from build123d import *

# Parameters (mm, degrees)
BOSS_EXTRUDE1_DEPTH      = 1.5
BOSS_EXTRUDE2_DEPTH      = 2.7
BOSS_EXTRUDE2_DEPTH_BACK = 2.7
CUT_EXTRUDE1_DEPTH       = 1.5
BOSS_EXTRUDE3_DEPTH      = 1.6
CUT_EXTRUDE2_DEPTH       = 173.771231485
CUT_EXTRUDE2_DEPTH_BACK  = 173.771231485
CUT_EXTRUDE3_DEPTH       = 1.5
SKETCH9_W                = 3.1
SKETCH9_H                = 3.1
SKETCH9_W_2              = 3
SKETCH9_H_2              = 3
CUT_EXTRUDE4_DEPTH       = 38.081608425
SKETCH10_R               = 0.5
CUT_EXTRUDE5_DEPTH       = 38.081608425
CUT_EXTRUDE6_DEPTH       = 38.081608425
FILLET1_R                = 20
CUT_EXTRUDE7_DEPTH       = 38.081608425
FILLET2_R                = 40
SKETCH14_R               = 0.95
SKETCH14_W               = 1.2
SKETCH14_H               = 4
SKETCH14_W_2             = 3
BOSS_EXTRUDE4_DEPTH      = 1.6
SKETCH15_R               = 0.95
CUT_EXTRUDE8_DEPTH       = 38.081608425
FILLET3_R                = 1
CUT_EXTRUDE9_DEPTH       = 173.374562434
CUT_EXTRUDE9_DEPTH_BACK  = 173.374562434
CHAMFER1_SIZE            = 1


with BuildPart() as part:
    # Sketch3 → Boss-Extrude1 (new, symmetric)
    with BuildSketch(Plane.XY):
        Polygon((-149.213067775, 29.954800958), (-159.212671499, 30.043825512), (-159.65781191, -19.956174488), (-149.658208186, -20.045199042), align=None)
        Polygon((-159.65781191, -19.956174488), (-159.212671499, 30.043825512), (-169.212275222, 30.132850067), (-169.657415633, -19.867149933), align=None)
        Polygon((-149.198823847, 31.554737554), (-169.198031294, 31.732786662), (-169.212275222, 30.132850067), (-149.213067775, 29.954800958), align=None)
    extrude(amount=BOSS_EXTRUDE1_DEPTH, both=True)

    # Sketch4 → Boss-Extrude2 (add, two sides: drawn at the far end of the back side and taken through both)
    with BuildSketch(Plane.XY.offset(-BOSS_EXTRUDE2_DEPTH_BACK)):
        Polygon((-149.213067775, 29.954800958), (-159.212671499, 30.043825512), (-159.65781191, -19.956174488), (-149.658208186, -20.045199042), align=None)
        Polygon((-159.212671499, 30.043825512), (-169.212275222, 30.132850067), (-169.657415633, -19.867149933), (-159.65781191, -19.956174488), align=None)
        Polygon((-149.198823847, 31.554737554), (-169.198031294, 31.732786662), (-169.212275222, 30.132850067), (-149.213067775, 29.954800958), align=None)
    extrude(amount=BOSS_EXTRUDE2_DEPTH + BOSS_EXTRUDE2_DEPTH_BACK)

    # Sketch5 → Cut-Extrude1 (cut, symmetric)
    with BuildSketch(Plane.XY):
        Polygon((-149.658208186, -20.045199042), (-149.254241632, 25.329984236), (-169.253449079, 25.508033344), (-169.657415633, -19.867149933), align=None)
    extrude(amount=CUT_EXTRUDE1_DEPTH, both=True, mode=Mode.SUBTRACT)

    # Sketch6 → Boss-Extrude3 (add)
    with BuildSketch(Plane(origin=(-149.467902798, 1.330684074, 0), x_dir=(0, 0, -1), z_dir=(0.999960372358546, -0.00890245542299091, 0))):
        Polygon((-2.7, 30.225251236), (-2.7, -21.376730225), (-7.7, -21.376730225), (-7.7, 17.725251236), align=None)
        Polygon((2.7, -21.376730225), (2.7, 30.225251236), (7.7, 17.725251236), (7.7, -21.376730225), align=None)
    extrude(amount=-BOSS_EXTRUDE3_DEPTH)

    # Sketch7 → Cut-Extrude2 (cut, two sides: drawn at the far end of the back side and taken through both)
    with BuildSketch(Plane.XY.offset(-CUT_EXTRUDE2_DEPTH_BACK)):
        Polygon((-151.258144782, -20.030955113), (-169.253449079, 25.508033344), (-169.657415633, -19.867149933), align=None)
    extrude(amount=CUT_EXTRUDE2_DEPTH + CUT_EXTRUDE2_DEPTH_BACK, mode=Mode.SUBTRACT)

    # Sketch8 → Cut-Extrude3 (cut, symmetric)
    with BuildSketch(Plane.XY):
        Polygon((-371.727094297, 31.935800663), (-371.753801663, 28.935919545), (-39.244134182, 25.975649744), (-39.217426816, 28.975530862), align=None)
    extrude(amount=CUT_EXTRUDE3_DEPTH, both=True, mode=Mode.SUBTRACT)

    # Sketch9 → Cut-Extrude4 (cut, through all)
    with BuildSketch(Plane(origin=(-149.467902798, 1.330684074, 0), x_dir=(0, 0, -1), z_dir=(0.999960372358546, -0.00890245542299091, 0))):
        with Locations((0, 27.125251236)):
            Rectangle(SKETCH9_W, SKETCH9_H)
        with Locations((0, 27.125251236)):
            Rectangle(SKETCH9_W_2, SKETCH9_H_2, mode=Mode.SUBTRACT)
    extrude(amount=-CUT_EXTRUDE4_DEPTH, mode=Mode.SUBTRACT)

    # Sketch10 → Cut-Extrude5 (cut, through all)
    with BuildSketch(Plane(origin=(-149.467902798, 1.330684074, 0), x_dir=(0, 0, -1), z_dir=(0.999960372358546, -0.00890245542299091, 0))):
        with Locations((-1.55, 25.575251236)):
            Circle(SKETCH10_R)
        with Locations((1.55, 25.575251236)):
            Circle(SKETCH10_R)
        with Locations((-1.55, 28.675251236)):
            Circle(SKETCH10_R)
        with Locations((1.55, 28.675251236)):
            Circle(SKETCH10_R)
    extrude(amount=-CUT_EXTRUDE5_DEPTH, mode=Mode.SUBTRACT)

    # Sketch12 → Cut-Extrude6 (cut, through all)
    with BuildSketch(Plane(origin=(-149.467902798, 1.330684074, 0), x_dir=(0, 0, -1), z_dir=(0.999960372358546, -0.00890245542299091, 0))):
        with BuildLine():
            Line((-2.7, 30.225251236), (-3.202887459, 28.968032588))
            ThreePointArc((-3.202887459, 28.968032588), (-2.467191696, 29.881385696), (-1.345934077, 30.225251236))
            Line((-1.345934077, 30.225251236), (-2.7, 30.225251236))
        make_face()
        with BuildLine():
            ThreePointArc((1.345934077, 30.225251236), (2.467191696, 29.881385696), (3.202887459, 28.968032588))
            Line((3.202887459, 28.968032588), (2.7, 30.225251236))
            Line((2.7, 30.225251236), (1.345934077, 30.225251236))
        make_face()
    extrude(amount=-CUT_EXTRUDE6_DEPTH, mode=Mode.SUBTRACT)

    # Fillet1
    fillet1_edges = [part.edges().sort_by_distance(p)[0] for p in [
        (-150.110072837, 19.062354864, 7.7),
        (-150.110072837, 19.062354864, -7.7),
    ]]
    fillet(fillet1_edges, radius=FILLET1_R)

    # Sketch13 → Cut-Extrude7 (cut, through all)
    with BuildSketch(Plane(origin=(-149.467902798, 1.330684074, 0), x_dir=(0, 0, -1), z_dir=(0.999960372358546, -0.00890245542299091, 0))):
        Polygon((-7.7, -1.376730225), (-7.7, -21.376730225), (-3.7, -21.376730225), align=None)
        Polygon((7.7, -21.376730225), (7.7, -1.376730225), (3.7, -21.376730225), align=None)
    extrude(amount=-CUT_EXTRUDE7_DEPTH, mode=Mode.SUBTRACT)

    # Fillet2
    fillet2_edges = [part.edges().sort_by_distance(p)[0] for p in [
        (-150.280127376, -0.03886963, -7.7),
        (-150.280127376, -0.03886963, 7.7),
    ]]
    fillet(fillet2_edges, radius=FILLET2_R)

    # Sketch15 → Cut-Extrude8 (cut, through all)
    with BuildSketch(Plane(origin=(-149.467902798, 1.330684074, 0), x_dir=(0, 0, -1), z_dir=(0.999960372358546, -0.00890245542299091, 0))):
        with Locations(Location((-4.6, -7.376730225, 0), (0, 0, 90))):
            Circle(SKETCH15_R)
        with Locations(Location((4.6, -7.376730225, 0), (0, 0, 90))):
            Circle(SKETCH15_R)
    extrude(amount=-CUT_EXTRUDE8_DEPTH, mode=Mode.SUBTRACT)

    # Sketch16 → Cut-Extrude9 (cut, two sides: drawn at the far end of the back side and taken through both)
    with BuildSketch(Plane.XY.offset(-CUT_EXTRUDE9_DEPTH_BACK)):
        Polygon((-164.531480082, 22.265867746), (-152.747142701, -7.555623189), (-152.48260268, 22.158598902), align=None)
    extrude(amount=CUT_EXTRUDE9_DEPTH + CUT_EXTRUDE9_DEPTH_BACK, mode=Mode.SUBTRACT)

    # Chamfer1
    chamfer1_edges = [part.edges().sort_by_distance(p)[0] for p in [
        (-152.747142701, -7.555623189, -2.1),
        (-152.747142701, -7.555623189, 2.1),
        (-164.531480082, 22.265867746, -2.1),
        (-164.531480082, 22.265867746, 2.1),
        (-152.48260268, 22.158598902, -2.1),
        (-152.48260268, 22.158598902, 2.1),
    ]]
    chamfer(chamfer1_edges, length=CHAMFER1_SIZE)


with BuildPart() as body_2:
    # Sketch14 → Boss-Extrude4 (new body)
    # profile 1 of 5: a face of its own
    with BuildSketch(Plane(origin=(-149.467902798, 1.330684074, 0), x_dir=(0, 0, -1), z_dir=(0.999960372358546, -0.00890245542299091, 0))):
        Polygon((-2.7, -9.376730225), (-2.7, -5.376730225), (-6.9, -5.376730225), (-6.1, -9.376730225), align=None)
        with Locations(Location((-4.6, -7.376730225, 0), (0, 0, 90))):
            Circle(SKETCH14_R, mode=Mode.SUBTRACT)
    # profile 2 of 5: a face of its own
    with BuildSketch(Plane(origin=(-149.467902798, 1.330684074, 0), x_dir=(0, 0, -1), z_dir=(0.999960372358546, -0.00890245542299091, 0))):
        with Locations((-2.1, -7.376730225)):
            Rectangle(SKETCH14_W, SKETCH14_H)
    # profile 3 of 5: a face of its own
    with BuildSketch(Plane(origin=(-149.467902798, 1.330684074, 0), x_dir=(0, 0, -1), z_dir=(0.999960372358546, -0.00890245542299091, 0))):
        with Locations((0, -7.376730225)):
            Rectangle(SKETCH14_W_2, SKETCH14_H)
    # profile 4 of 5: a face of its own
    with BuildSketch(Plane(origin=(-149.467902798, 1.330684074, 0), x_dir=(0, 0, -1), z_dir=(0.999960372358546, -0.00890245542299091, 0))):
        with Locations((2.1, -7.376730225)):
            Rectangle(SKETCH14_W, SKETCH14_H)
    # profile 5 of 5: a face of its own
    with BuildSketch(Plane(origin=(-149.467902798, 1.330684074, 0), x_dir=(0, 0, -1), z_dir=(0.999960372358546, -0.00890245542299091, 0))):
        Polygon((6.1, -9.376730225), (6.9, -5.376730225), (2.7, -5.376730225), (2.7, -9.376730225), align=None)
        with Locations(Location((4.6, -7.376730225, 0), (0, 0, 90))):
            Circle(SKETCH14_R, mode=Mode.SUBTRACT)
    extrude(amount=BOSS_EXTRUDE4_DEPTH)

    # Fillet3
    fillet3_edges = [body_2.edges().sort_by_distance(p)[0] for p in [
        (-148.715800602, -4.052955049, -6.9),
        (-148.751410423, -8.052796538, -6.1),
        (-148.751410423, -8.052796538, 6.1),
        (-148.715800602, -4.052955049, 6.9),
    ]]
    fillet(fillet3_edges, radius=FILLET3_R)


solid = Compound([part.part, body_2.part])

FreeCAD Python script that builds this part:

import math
import FreeCAD as App
import Part
import Sketcher

V = App.Vector
Q = App.Units.Quantity


def edges_at(feature, points):
    """Names of the edges that pass closest to the given points."""
    edges = feature.Shape.Edges
    near = lambda p: min(range(len(edges)), key=lambda i: edges[i].distToShape(Part.Vertex(*p))[0])
    return sorted({f"Edge{near(p) + 1}" for p in points})


def add_polygon(sketch, points):
    """Adds a closed chain of lines whose ends are joined by coincident constraints."""
    first, n = sketch.GeometryCount, len(points)
    for a, b in zip(points, points[1:] + points[:1]):
        sketch.addGeometry(Part.LineSegment(App.Vector(*a, 0), App.Vector(*b, 0)), False)
    for i in range(n):
        sketch.addConstraint(Sketcher.Constraint("Coincident", first + i, 2, first + (i + 1) % n, 1))

doc = App.newDocument("Part")
body = doc.addObject("PartDesign::Body", "Body")

# Sketch on XY plane
sketch1 = body.newObject("Sketcher::SketchObject", "Sketch")
sketch1.AttachmentSupport = (doc.getObject("XY_Plane"), [""])
sketch1.MapMode = "FlatFace"
add_polygon(sketch1, [(-169.212275, 30.13285), (-169.657416, -19.86715), (-159.657812, -19.956174), (-149.658208, -20.045199), (-149.213068, 29.954801), (-149.198824, 31.554738), (-169.198031, 31.732787)])  # lines 0-6
sketch1.addConstraint([
    Sketcher.Constraint("Distance", 1, Q("10 mm")),
    Sketcher.Constraint("Distance", 2, Q("10 mm")),
    Sketcher.Constraint("Distance", 5, Q("20 mm")),
    Sketcher.Constraint("DistanceY", 2, 2, 3, 2, Q("50 mm")),
    Sketcher.Constraint("DistanceY", 0, 2, 6, 2, Q("50 mm")),
    Sketcher.Constraint("Distance", 4, Q("1.6 mm")),
    Sketcher.Constraint("Distance", 6, Q("1.6 mm")),
    Sketcher.Constraint("DistanceY", 2, 2, -1, 1, Q("20.045199 mm")),
    Sketcher.Constraint("Distance", 0, Q("50.001981 mm")),
    Sketcher.Constraint("Distance", 3, Q("50.001981 mm")),
    Sketcher.Constraint("DistanceY", 0, 2, -1, 1, Q("19.86715 mm")),
    Sketcher.Constraint("DistanceX", 1, 2, -1, 1, Q("159.657812 mm")),
    Sketcher.Constraint("DistanceX", 2, 2, -1, 1, Q("149.658208 mm")),
    Sketcher.Constraint("DistanceX", 5, 2, -1, 1, Q("169.198031 mm")),
])
pad1 = body.newObject("PartDesign::Pad", "Pad")
pad1.Profile = sketch1
pad1.Length = 3
pad1.Midplane = True

# Sketch on XY plane
sketch2 = body.newObject("Sketcher::SketchObject", "Sketch001")
sketch2.AttachmentSupport = (doc.getObject("XY_Plane"), [""])
sketch2.MapMode = "FlatFace"
add_polygon(sketch2, [(-169.212275, 30.13285), (-169.657416, -19.86715), (-159.657812, -19.956174), (-149.658208, -20.045199), (-149.213068, 29.954801), (-149.198824, 31.554738), (-169.198031, 31.732787)])  # lines 0-6
sketch2.addConstraint([
    Sketcher.Constraint("Distance", 1, Q("10 mm")),
    Sketcher.Constraint("Distance", 2, Q("10 mm")),
    Sketcher.Constraint("Distance", 5, Q("20 mm")),
    Sketcher.Constraint("DistanceY", 2, 2, 3, 2, Q("50 mm")),
    Sketcher.Constraint("DistanceY", 0, 2, 6, 2, Q("50 mm")),
    Sketcher.Constraint("Distance", 4, Q("1.6 mm")),
    Sketcher.Constraint("Distance", 6, Q("1.6 mm")),
    Sketcher.Constraint("DistanceY", 2, 2, -1, 1, Q("20.045199 mm")),
    Sketcher.Constraint("Distance", 0, Q("50.001981 mm")),
    Sketcher.Constraint("Distance", 3, Q("50.001981 mm")),
    Sketcher.Constraint("DistanceY", 0, 2, -1, 1, Q("19.86715 mm")),
    Sketcher.Constraint("DistanceX", 1, 2, -1, 1, Q("159.657812 mm")),
    Sketcher.Constraint("DistanceX", 2, 2, -1, 1, Q("149.658208 mm")),
    Sketcher.Constraint("DistanceX", 5, 2, -1, 1, Q("169.198031 mm")),
])
pad2 = body.newObject("PartDesign::Pad", "Pad001")
pad2.Profile = sketch2
pad2.Type = "TwoLengths"
pad2.Length = 2.7
pad2.Length2 = 2.7

# Sketch on XY plane
sketch3 = body.newObject("Sketcher::SketchObject", "Sketch002")
sketch3.AttachmentSupport = (doc.getObject("XY_Plane"), [""])
sketch3.MapMode = "FlatFace"
add_polygon(sketch3, [(-150, -20), (-149, 25), (-169, 26), (-170, -20)])  # lines 0-3
sketch3.addConstraint([
    Sketcher.Constraint("Perpendicular", 0, 1),
    Sketcher.Constraint("Perpendicular", 1, 2),
    Sketcher.Constraint("Perpendicular", 2, 3),
    Sketcher.Constraint("Distance", 1, Q("20 mm")),
    Sketcher.Constraint("DistanceY", 3, 2, -1, 1, Q("20.045199 mm")),
    Sketcher.Constraint("Distance", 0, Q("45.376981 mm")),
    Sketcher.Constraint("DistanceX", 0, 2, -1, 1, Q("149.254242 mm")),
    Sketcher.Constraint("DistanceY", 2, 2, -1, 1, Q("19.86715 mm")),
])
pocket1 = body.newObject("PartDesign::Pocket", "Pocket")
pocket1.Profile = sketch3
pocket1.Length = 3
pocket1.Midplane = True

# Sketch on an angled plane
sketch4 = body.newObject("Sketcher::SketchObject", "Sketch003")
sketch4.Placement = App.Placement(V(-149.467903, 1.330684, 0), App.Rotation(V(0, 0, -1), V(0.008902455, 0.999960372, 0), V(0.999960372, -0.008902455, 0), "ZXY"))
add_polygon(sketch4, [(-3, -21), (-3, 30), (-8, 18), (-8, -21)])  # lines 0-3
add_polygon(sketch4, [(3, 30), (3, -21), (8, -21), (8, 18)])  # lines 4-7
sketch4.addConstraint([
    Sketcher.Constraint("Vertical", 0),
    Sketcher.Constraint("Vertical", 2),
    Sketcher.Constraint("Horizontal", 3),
    Sketcher.Constraint("Vertical", 4),
    Sketcher.Constraint("Horizontal", 5),
    Sketcher.Constraint("Vertical", 6),
    Sketcher.Constraint("Symmetric", 3, 2, 4, 2, -2),
    Sketcher.Constraint("Symmetric", 1, 2, 6, 2, -2),
    Sketcher.Constraint("Horizontal", 0, 2, 7, 2),
    Sketcher.Constraint("DistanceX", 3, 1, 3, 2, Q("5 mm")),
    Sketcher.Constraint("DistanceX", 0, 2, -1, 1, Q("2.7 mm")),
    Sketcher.Constraint("DistanceY", 1, 2, 0, 2, Q("12.5 mm")),
    Sketcher.Constraint("DistanceY", 0, 1, 0, 2, Q("51.601981 mm")),
    Sketcher.Constraint("DistanceY", -1, 1, 0, 2, Q("30.225251 mm")),
])
pad3 = body.newObject("PartDesign::Pad", "Pad002")
pad3.Profile = sketch4
pad3.Length = 1.6
pad3.Reversed = True

# Sketch on XY plane
sketch5 = body.newObject("Sketcher::SketchObject", "Sketch004")
sketch5.AttachmentSupport = (doc.getObject("XY_Plane"), [""])
sketch5.MapMode = "FlatFace"
add_polygon(sketch5, [(-151, -20), (-169, 26), (-170, -20)])  # lines 0-2
sketch5.addConstraint([
    Sketcher.Constraint("Perpendicular", 1, 2),
    Sketcher.Constraint("Distance", 2, Q("18.4 mm")),
    Sketcher.Constraint("Distance", 1, Q("45.376981 mm")),
    Sketcher.Constraint("DistanceX", 0, 2, -1, 1, Q("169.253449 mm")),
    Sketcher.Constraint("DistanceY", 1, 2, -1, 1, Q("19.86715 mm")),
    Sketcher.Constraint("DistanceY", 2, 2, 0, 2, Q("45.538988 mm")),
])
pocket2 = body.newObject("PartDesign::Pocket", "Pocket001")
pocket2.Profile = sketch5
pocket2.Type = "ThroughAll"
pocket2.Midplane = True

# Sketch on XY plane
sketch6 = body.newObject("Sketcher::SketchObject", "Sketch005")
sketch6.AttachmentSupport = (doc.getObject("XY_Plane"), [""])
sketch6.MapMode = "FlatFace"
add_polygon(sketch6, [(-371.7, 31.9), (-371.8, 28.9), (-39.2, 26), (-39.2, 29)])  # lines 0-3
sketch6.addConstraint([
    Sketcher.Constraint("Perpendicular", 0, 1),
    Sketcher.Constraint("Perpendicular", 1, 2),
    Sketcher.Constraint("Perpendicular", 2, 3),
    Sketcher.Constraint("Distance", 0, Q("3 mm")),
    Sketcher.Constraint("DistanceX", 0, 2, -1, 1, Q("371.753802 mm")),
    Sketcher.Constraint("DistanceY", -1, 1, 3, 2, Q("31.935801 mm")),
    Sketcher.Constraint("DistanceY", -1, 1, 1, 2, Q("25.97565 mm")),
    Sketcher.Constraint("DistanceX", 3, 2, 1, 2, Q("332.48296 mm")),
])
pocket3 = body.newObject("PartDesign::Pocket", "Pocket002")
pocket3.Profile = sketch6
pocket3.Length = 3
pocket3.Midplane = True

# Sketch on an angled plane
sketch7 = body.newObject("Sketcher::SketchObject", "Sketch006")
sketch7.Placement = App.Placement(V(-149.467903, 1.330684, 0), App.Rotation(V(0, 0, -1), V(0.008902455, 0.999960372, 0), V(0.999960372, -0.008902455, 0), "ZXY"))
add_polygon(sketch7, [(-1.6, 28.7), (-1.6, 25.6), (1.6, 25.6), (1.6, 28.7)])  # lines 0-3
add_polygon(sketch7, [(1.5, 25.6), (-1.5, 25.6), (-1.5, 28.6), (1.5, 28.6)])  # lines 4-7
sketch7.addConstraint([
    Sketcher.Constraint("Vertical", 0),
    Sketcher.Constraint("Horizontal", 1),
    Sketcher.Constraint("Vertical", 2),
    Sketcher.Constraint("Horizontal", 3),
    Sketcher.Constraint("Horizontal", 4),
    Sketcher.Constraint("Vertical", 5),
    Sketcher.Constraint("Horizontal", 6),
    Sketcher.Constraint("Vertical", 7),
    Sketcher.Constraint("Equal", 3, 0),
    Sketcher.Constraint("Equal", 6, 5),
    Sketcher.Constraint("DistanceX", 4, 2, 4, 1, Q("3 mm")),
    Sketcher.Constraint("DistanceX", 1, 1, 1, 2, Q("3.1 mm")),
    Sketcher.Constraint("DistanceX", 4, 2, -1, 1, Q("1.5 mm")),
    Sketcher.Constraint("DistanceX", 0, 2, -1, 1, Q("1.55 mm")),
    Sketcher.Constraint("DistanceY", 0, 2, 4, 2, Q("0.05 mm")),
    Sketcher.Constraint("DistanceY", -1, 1, 0, 2, Q("25.575251 mm")),
])
pocket4 = body.newObject("PartDesign::Pocket", "Pocket003")
pocket4.Profile = sketch7
pocket4.Type = "ThroughAll"

# Sketch on an angled plane
sketch8 = body.newObject("Sketcher::SketchObject", "Sketch007")
sketch8.Placement = App.Placement(V(-149.467903, 1.330684, 0), App.Rotation(V(0, 0, -1), V(0.008902455, 0.999960372, 0), V(0.999960372, -0.008902455, 0), "ZXY"))
sketch8.addGeometry([
    Part.Circle(V(-1.6, 25.6, 0), V(0, 0, 1), 0.5),
    Part.Circle(V(1.6, 25.6, 0), V(0, 0, 1), 0.5),
    Part.Circle(V(-1.6, 28.7, 0), V(0, 0, 1), 0.5),
    Part.Circle(V(1.6, 28.7, 0), V(0, 0, 1), 0.5),
], False)
sketch8.addConstraint([
    Sketcher.Constraint("Equal", 0, 1),
    Sketcher.Constraint("Equal", 1, 2),
    Sketcher.Constraint("Equal", 2, 3),
    Sketcher.Constraint("Symmetric", 0, 3, 1, 3, -2),
    Sketcher.Constraint("Symmetric", 2, 3, 3, 3, -2),
    Sketcher.Constraint("Vertical", 0, 3, 2, 3),
    Sketcher.Constraint("Diameter", 0, Q("1 mm")),
    Sketcher.Constraint("DistanceX", 0, 3, 1, 3, Q("3.1 mm")),
    Sketcher.Constraint("DistanceY", 0, 3, 2, 3, Q("3.1 mm")),
    Sketcher.Constraint("DistanceY", -1, 1, 0, 3, Q("25.575251 mm")),
])
pocket5 = body.newObject("PartDesign::Pocket", "Pocket004")
pocket5.Profile = sketch8
pocket5.Type = "ThroughAll"

# Sketch on an angled plane
sketch9 = body.newObject("Sketcher::SketchObject", "Sketch008")
sketch9.Placement = App.Placement(V(-149.467903, 1.330684, 0), App.Rotation(V(0, 0, -1), V(0.008902455, 0.999960372, 0), V(0.999960372, -0.008902455, 0), "ZXY"))
sketch9.addGeometry([
    Part.LineSegment(V(-2.7, 30.2, 0), V(-3.2, 29, 0)),  # 0
    Part.ArcOfCircle(Part.Circle(V(-1.3, 28.2, 0), V(0, 0, 1), 2), math.radians(90), math.radians(158)),  # 1
    Part.LineSegment(V(-1.3, 30.2, 0), V(-2.7, 30.2, 0)),  # 2
    Part.ArcOfCircle(Part.Circle(V(1.3, 28.2, 0), V(0, 0, 1), 2), math.radians(22), math.radians(90)),  # 3
    Part.LineSegment(V(3.2, 29, 0), V(2.7, 30.2, 0)),  # 4
    Part.LineSegment(V(2.7, 30.2, 0), V(1.3, 30.2, 0)),  # 5
], False)
sketch9.addConstraint([
    Sketcher.Constraint("Tangent", 0, 2, 1, 2),
    Sketcher.Constraint("Tangent", 1, 1, 2, 1),
    Sketcher.Constraint("Coincident", 2, 2, 0, 1),
    Sketcher.Constraint("Tangent", 3, 1, 4, 1),
    Sketcher.Constraint("Coincident", 4, 2, 5, 1),
    Sketcher.Constraint("Tangent", 5, 2, 3, 2),
    Sketcher.Constraint("Horizontal", 2),
    Sketcher.Constraint("Horizontal", 5),
    Sketcher.Constraint("Equal", 1, 3),
    Sketcher.Constraint("Symmetric", 1, 3, 3, 3, -2),
    Sketcher.Constraint("Horizontal", 0, 2, 3, 1),
    Sketcher.Constraint("Radius", 1, Q("2 mm")),
    Sketcher.Constraint("DistanceX", 2, 2, -1, 1, Q("2.7 mm")),
    Sketcher.Constraint("DistanceX", 2, 2, 2, 1, Q("1.354066 mm")),
    Sketcher.Constraint("DistanceY", -1, 1, 1, 3, Q("28.225251 mm")),
])
pocket6 = body.newObject("PartDesign::Pocket", "Pocket005")
pocket6.Profile = sketch9
pocket6.Type = "ThroughAll"
doc.recompute()

fillet = body.newObject("PartDesign::Fillet", "Fillet")
fillet.Base = (pocket6, edges_at(pocket6, [(-150.11, 19.062, 7.7), (-150.11, 19.062, -7.7)]))
fillet.Radius = 20

# Sketch on an angled plane
sketch10 = body.newObject("Sketcher::SketchObject", "Sketch009")
sketch10.Placement = App.Placement(V(-149.467903, 1.330684, 0), App.Rotation(V(0, 0, -1), V(0.008902455, 0.999960372, 0), V(0.999960372, -0.008902455, 0), "ZXY"))
add_polygon(sketch10, [(-7.7, -1.4), (-7.7, -21.4), (-3.7, -21.4)])  # lines 0-2
add_polygon(sketch10, [(7.7, -21.4), (7.7, -1.4), (3.7, -21.4)])  # lines 3-5
sketch10.addConstraint([
    Sketcher.Constraint("Vertical", 0),
    Sketcher.Constraint("Horizontal", 1),
    Sketcher.Constraint("Vertical", 3),
    Sketcher.Constraint("Horizontal", 5),
    Sketcher.Constraint("Symmetric", 2, 2, 3, 2, -2),
    Sketcher.Constraint("Symmetric", 1, 2, 4, 2, -2),
    Sketcher.Constraint("DistanceX", 1, 1, 1, 2, Q("4 mm")),
    Sketcher.Constraint("DistanceY", 0, 2, 0, 1, Q("20 mm")),
    Sketcher.Constraint("DistanceX", 0, 2, -1, 1, Q("7.7 mm")),
    Sketcher.Constraint("DistanceY", 0, 2, -1, 1, Q("21.37673 mm")),
])
pocket7 = body.newObject("PartDesign::Pocket", "Pocket006")
pocket7.Profile = sketch10
pocket7.Type = "ThroughAll"
doc.recompute()

fillet2 = body.newObject("PartDesign::Fillet", "Fillet001")
fillet2.Base = (pocket7, edges_at(pocket7, [(-150.28, -0.039, -7.7), (-150.28, -0.039, 7.7)]))
fillet2.Radius = 40

# Sketch on an angled plane
sketch11 = body.newObject("Sketcher::SketchObject", "Sketch010")
sketch11.Placement = App.Placement(V(-149.467903, 1.330684, 0), App.Rotation(V(0, 0, -1), V(0.008902455, 0.999960372, 0), V(0.999960372, -0.008902455, 0), "ZXY"))
sketch11.addGeometry([
    Part.Circle(V(-4.6, -7.4, 0), V(0, 0, 1), 0.9),
    Part.Circle(V(4.6, -7.4, 0), V(0, 0, 1), 0.9),
], False)
sketch11.addConstraint([
    Sketcher.Constraint("Equal", 0, 1),
    Sketcher.Constraint("Symmetric", 0, 3, 1, 3, -2),
    Sketcher.Constraint("Diameter", 0, Q("1.9 mm")),
    Sketcher.Constraint("DistanceX", 0, 3, -1, 1, Q("4.6 mm")),
    Sketcher.Constraint("DistanceY", 0, 3, -1, 1, Q("7.37673 mm")),
])
pocket8 = body.newObject("PartDesign::Pocket", "Pocket007")
pocket8.Profile = sketch11
pocket8.Type = "ThroughAll"

# Sketch on XY plane
sketch12 = body.newObject("Sketcher::SketchObject", "Sketch011")
sketch12.AttachmentSupport = (doc.getObject("XY_Plane"), [""])
sketch12.MapMode = "FlatFace"
add_polygon(sketch12, [(-165, 22), (-153, -8), (-152, 22)])  # lines 0-2
sketch12.addConstraint([
    Sketcher.Constraint("Perpendicular", 1, 2),
    Sketcher.Constraint("Distance", 1, Q("29.7154 mm")),
    Sketcher.Constraint("DistanceY", -1, 1, 1, 2, Q("22.158599 mm")),
    Sketcher.Constraint("Distance", 0, Q("32.065432 mm")),
    Sketcher.Constraint("DistanceX", 2, 2, -1, 1, Q("164.53148 mm")),
    Sketcher.Constraint("DistanceX", 0, 2, 1, 2, Q("0.26454 mm")),
])
pocket9 = body.newObject("PartDesign::Pocket", "Pocket008")
pocket9.Profile = sketch12
pocket9.Type = "ThroughAll"
pocket9.Midplane = True
doc.recompute()

chamfer = body.newObject("PartDesign::Chamfer", "Chamfer")
chamfer.Base = (pocket9, edges_at(pocket9, [
    (-152.747, -7.556, -2.1),
    (-152.747, -7.556, 2.1),
    (-164.531, 22.266, -2.1),
    (-164.531, 22.266, 2.1),
    (-152.483, 22.159, -2.1),
    (-152.483, 22.159, 2.1),
]))
chamfer.Size = 1
body2 = doc.addObject("PartDesign::Body", "Body001")

# Sketch on an angled plane
sketch13 = body2.newObject("Sketcher::SketchObject", "Sketch012")
sketch13.Placement = App.Placement(V(-149.467903, 1.330684, 0), App.Rotation(V(0, 0, -1), V(0.008902455, 0.999960372, 0), V(0.999960372, -0.008902455, 0), "ZXY"))
add_polygon(sketch13, [(-6.1, -9.4), (6.1, -9.4), (6.9, -5.4), (-6.9, -5.4)])  # lines 0-3
sketch13.addGeometry(Part.Circle(V(-4.6, -7.4, 0), V(0, 0, 1), 0.9), False)  # 4
sketch13.addGeometry(Part.Circle(V(4.6, -7.4, 0), V(0, 0, 1), 0.9), False)  # 5
sketch13.addConstraint([
    Sketcher.Constraint("Horizontal", 0),
    Sketcher.Constraint("Horizontal", 2),
    Sketcher.Constraint("Equal", 4, 5),
    Sketcher.Constraint("Symmetric", 4, 3, 5, 3, -2),
    Sketcher.Constraint("Equal", 1, 3),
    Sketcher.Constraint("Diameter", 4, Q("1.9 mm")),
    Sketcher.Constraint("DistanceX", 0, 1, 0, 2, Q("12.2 mm")),
    Sketcher.Constraint("DistanceX", 2, 2, 2, 1, Q("13.8 mm")),
    Sketcher.Constraint("DistanceY", 0, 2, 5, 3, Q("2 mm")),
    Sketcher.Constraint("DistanceY", 5, 3, 1, 2, Q("2 mm")),
    Sketcher.Constraint("DistanceX", 4, 3, -1, 1, Q("4.6 mm")),
    Sketcher.Constraint("DistanceX", -1, 1, 0, 2, Q("6.1 mm")),
    Sketcher.Constraint("DistanceY", 4, 3, -1, 1, Q("7.37673 mm")),
])
pad4 = body2.newObject("PartDesign::Pad", "Pad003")
pad4.Profile = sketch13
pad4.Length = 1.6
doc.recompute()

fillet3 = body2.newObject("PartDesign::Fillet", "Fillet002")
fillet3.Base = (pad4, edges_at(pad4, [
    (-148.716, -4.053, -6.9),
    (-148.751, -8.053, -6.1),
    (-148.751, -8.053, 6.1),
    (-148.716, -4.053, 6.9),
]))
fillet3.Radius = 1

doc.recompute()
